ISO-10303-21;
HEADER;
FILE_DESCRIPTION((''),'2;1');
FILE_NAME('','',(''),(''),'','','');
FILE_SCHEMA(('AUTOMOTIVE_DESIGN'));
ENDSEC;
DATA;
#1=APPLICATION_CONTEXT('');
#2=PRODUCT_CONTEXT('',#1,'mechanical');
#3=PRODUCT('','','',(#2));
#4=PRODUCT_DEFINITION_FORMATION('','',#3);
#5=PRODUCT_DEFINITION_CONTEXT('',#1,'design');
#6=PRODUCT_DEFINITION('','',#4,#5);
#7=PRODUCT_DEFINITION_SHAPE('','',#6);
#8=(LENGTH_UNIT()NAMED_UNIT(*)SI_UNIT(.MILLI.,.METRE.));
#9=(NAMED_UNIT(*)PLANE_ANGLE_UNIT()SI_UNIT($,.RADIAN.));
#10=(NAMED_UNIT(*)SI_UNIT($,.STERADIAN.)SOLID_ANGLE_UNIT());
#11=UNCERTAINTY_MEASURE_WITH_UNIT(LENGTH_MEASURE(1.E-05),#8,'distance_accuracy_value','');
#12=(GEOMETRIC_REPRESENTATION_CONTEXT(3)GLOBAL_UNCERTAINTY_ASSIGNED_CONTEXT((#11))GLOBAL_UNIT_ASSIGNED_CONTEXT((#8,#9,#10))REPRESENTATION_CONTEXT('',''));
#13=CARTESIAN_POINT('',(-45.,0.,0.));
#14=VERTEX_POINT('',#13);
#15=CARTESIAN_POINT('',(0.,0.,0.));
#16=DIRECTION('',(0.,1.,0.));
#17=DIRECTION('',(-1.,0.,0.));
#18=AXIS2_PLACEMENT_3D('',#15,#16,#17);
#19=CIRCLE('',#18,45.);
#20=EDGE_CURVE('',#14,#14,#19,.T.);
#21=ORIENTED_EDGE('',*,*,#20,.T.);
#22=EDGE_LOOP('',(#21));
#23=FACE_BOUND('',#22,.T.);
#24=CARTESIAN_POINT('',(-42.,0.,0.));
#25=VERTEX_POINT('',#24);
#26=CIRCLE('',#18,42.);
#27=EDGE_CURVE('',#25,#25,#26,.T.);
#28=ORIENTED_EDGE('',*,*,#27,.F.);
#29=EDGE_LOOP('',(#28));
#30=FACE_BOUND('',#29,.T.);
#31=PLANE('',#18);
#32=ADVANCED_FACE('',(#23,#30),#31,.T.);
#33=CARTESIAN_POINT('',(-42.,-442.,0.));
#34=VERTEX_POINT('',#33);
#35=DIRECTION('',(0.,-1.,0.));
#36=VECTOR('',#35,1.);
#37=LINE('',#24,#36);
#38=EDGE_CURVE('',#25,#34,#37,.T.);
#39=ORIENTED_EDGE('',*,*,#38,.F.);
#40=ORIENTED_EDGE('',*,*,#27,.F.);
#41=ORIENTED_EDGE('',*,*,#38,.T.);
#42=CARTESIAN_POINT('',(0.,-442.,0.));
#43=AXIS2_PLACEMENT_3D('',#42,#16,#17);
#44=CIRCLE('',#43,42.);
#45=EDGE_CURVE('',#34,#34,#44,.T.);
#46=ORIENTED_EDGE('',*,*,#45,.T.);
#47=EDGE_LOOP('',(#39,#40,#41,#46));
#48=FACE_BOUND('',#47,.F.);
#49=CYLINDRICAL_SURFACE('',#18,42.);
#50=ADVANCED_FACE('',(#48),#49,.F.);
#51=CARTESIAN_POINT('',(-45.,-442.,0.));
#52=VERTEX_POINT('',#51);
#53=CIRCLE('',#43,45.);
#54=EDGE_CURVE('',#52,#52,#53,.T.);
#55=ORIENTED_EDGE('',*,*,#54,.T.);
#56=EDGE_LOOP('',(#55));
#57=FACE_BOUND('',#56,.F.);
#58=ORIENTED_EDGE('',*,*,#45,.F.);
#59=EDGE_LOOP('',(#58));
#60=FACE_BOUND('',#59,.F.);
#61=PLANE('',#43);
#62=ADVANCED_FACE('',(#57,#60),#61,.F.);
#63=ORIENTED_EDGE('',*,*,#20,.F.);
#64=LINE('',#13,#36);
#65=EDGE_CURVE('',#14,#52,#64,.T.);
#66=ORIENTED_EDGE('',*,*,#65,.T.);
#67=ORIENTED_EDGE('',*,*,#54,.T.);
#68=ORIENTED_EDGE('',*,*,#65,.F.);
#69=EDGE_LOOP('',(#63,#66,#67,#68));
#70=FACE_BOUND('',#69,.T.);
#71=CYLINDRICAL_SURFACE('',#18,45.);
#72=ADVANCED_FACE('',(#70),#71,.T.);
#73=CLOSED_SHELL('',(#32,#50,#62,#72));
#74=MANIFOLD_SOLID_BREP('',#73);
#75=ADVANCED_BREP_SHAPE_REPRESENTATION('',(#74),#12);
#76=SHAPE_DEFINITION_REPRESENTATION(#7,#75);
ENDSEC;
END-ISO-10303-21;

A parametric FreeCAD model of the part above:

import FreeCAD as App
import Part
import Sketcher
from FreeCAD import Vector
Q = App.Units.Quantity

doc = App.newDocument("Part")
params = doc.addObject("Spreadsheet::Sheet", "Params")
for row, (alias, value) in enumerate([
    ("sketch1_diameter", "90 mm"),
    ("sketch1_diameter2", "84 mm"),
    ("pad1_length", "442 mm"),
], start=1):
    params.set(f"A{row}", alias)
    params.set(f"B{row}", "=" + value)
    params.setAlias(f"B{row}", alias)

body = doc.addObject("PartDesign::Body", "Body")

sketch1 = body.newObject("Sketcher::SketchObject", "Sketch")
sketch1.AttachmentSupport = (doc.getObject("XZ_Plane"), [""])
sketch1.MapMode = "FlatFace"
sketch1.addGeometry(Part.Circle(Vector(0, 0, 0), Vector(0, 0, 1), 45), False)
sketch1.addGeometry(Part.Circle(Vector(0, 0, 0), Vector(0, 0, 1), 42), False)
sketch1.addConstraint(Sketcher.Constraint("Coincident", 0, 3, -1, 1))
sketch1.addConstraint(Sketcher.Constraint("Coincident", 1, 3, -1, 1))
sketch1.addConstraint(Sketcher.Constraint("Diameter", 0, Q("90 mm")))
sketch1.addConstraint(Sketcher.Constraint("Diameter", 1, Q("84 mm")))
sketch1.setExpression("Constraints[2]", "Params.sketch1_diameter")
sketch1.setExpression("Constraints[3]", "Params.sketch1_diameter2")
pad1 = body.newObject("PartDesign::Pad", "Pad")
pad1.Profile = sketch1
pad1.setExpression("Length", "Params.pad1_length")

doc.recompute()
